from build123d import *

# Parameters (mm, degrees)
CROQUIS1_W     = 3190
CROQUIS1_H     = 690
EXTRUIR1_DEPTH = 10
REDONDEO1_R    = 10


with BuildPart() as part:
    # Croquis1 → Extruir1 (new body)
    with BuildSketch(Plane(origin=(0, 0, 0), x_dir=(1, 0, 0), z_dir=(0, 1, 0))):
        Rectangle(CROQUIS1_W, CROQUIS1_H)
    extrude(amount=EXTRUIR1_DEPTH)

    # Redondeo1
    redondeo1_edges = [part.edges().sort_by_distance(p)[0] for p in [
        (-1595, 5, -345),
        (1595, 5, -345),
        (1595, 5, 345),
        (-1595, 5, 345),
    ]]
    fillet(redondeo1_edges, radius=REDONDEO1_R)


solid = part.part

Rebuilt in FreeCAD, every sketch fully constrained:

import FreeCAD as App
import Part
import Sketcher
Q = App.Units.Quantity


def edges_at(feature, points):
    """Names of the edges that pass closest to the given points."""
    edges = feature.Shape.Edges
    near = lambda p: min(range(len(edges)), key=lambda i: edges[i].distToShape(Part.Vertex(*p))[0])
    return sorted({f"Edge{near(p) + 1}" for p in points})

doc = App.newDocument("Part")
body = doc.addObject("PartDesign::Body", "Body")

# Sketch on XZ plane
sketch1 = body.newObject("Sketcher::SketchObject", "Sketch")
sketch1.AttachmentSupport = (doc.getObject("XZ_Plane"), [""])
sketch1.MapMode = "FlatFace"
sketch1.addGeometry([
    Part.LineSegment(App.Vector(-1595, -345, 0), App.Vector(-1595, 345, 0)),
    Part.LineSegment(App.Vector(-1595, 345, 0), App.Vector(1595, 345, 0)),
    Part.LineSegment(App.Vector(1595, 345, 0), App.Vector(1595, -345, 0)),
    Part.LineSegment(App.Vector(1595, -345, 0), App.Vector(-1595, -345, 0)),
], False)
sketch1.addConstraint([
    Sketcher.Constraint("Coincident", 0, 2, 1, 1),
    Sketcher.Constraint("Coincident", 1, 2, 2, 1),
    Sketcher.Constraint("Coincident", 2, 2, 3, 1),
    Sketcher.Constraint("Coincident", 3, 2, 0, 1),
    Sketcher.Constraint("Vertical", 0),
    Sketcher.Constraint("Horizontal", 1),
    Sketcher.Constraint("Vertical", 2),
    Sketcher.Constraint("Horizontal", 3),
    Sketcher.Constraint("Symmetric", 0, 2, 2, 2, -1, 1),
    Sketcher.Constraint("DistanceX", 1, 1, 1, 2, Q("3190 mm")),
    Sketcher.Constraint("DistanceY", 0, 1, 0, 2, Q("690 mm")),
])
pad1 = body.newObject("PartDesign::Pad", "Pad")
pad1.Profile = sketch1
pad1.Length = 10
pad1.Reversed = True
doc.recompute()

fillet = body.newObject("PartDesign::Fillet", "Fillet")
fillet.Base = (pad1, edges_at(pad1, [
    (-1595, 5, -345),
    (1595, 5, -345),
    (1595, 5, 345),
    (-1595, 5, 345),
]))
fillet.Radius = 10

doc.recompute()
